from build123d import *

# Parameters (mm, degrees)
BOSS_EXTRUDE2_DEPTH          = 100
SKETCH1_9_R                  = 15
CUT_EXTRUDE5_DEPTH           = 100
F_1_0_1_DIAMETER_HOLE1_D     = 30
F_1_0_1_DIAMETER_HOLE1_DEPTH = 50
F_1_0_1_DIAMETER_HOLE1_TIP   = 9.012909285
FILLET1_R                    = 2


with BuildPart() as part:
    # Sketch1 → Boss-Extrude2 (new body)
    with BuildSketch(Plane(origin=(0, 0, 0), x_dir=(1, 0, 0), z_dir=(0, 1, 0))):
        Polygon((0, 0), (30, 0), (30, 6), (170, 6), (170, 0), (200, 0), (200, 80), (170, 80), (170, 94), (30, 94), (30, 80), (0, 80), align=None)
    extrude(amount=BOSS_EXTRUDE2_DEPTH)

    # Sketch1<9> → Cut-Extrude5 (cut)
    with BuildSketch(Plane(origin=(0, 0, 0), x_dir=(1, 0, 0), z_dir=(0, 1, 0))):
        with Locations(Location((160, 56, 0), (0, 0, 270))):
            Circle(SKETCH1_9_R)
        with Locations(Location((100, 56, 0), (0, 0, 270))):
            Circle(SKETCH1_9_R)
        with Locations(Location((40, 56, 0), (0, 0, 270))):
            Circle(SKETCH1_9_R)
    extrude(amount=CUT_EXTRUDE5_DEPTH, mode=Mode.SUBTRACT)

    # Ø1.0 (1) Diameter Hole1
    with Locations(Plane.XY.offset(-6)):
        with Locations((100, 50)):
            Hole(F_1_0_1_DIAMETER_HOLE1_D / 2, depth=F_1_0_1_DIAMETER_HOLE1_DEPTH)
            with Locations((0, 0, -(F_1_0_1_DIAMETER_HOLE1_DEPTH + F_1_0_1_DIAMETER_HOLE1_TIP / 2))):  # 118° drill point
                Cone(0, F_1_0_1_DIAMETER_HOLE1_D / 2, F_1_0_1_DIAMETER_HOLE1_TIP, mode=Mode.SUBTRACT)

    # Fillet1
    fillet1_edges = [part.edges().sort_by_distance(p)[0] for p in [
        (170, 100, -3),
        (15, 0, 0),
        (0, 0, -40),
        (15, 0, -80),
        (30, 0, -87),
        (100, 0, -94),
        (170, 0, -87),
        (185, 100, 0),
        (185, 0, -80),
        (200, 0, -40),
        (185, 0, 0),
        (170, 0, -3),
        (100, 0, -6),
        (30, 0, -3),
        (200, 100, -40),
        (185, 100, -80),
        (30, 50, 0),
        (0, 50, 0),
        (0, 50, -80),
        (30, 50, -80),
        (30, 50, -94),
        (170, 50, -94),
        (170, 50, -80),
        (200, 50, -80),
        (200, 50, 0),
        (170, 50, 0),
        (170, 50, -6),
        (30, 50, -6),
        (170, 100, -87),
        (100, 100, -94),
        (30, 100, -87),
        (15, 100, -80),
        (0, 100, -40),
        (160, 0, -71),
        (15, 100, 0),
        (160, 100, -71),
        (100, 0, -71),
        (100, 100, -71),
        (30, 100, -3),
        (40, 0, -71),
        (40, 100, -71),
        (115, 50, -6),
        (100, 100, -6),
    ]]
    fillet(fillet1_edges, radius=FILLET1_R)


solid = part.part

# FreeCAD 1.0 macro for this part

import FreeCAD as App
import Part
import Sketcher
from FreeCAD import Vector
Q = App.Units.Quantity


def edges_at(feature, points):
    """Names of the edges that pass closest to the given points."""
    edges = feature.Shape.Edges
    near = lambda p: min(range(len(edges)), key=lambda i: edges[i].distToShape(Part.Vertex(*p))[0])
    return sorted({f"Edge{near(p) + 1}" for p in points})

doc = App.newDocument("Part")
body = doc.addObject("PartDesign::Body", "Body")

sketch1 = doc.addObject("Sketcher::SketchObject", "Sketch")
body.addObject(sketch1)
sketch1.AttachmentSupport = (doc.XZ_Plane, [""])
sketch1.MapMode = "FlatFace"
sketch1.addGeometry(Part.LineSegment(Vector(0, 0, 0), Vector(30, 0, 0)), False)
sketch1.addGeometry(Part.LineSegment(Vector(30, 0, 0), Vector(30, -6, 0)), False)
sketch1.addGeometry(Part.LineSegment(Vector(30, -6, 0), Vector(170, -6, 0)), False)
sketch1.addGeometry(Part.LineSegment(Vector(170, -6, 0), Vector(170, 0, 0)), False)
sketch1.addGeometry(Part.LineSegment(Vector(170, 0, 0), Vector(200, 0, 0)), False)
sketch1.addGeometry(Part.LineSegment(Vector(200, 0, 0), Vector(200, -80, 0)), False)
sketch1.addGeometry(Part.LineSegment(Vector(200, -80, 0), Vector(170, -80, 0)), False)
sketch1.addGeometry(Part.LineSegment(Vector(170, -80, 0), Vector(170, -94, 0)), False)
sketch1.addGeometry(Part.LineSegment(Vector(170, -94, 0), Vector(30, -94, 0)), False)
sketch1.addGeometry(Part.LineSegment(Vector(30, -94, 0), Vector(30, -80, 0)), False)
sketch1.addGeometry(Part.LineSegment(Vector(30, -80, 0), Vector(0, -80, 0)), False)
sketch1.addGeometry(Part.LineSegment(Vector(0, -80, 0), Vector(0, 0, 0)), False)
sketch1.addConstraint(Sketcher.Constraint("Coincident", 0, 2, 1, 1))
sketch1.addConstraint(Sketcher.Constraint("Coincident", 1, 2, 2, 1))
sketch1.addConstraint(Sketcher.Constraint("Coincident", 2, 2, 3, 1))
sketch1.addConstraint(Sketcher.Constraint("Coincident", 3, 2, 4, 1))
sketch1.addConstraint(Sketcher.Constraint("Coincident", 4, 2, 5, 1))
sketch1.addConstraint(Sketcher.Constraint("Coincident", 5, 2, 6, 1))
sketch1.addConstraint(Sketcher.Constraint("Coincident", 6, 2, 7, 1))
sketch1.addConstraint(Sketcher.Constraint("Coincident", 7, 2, 8, 1))
sketch1.addConstraint(Sketcher.Constraint("Coincident", 8, 2, 9, 1))
sketch1.addConstraint(Sketcher.Constraint("Coincident", 9, 2, 10, 1))
sketch1.addConstraint(Sketcher.Constraint("Coincident", 10, 2, 11, 1))
sketch1.addConstraint(Sketcher.Constraint("Coincident", 11, 2, 0, 1))
sketch1.addConstraint(Sketcher.Constraint("Horizontal", 0))
sketch1.addConstraint(Sketcher.Constraint("Vertical", 1))
sketch1.addConstraint(Sketcher.Constraint("Horizontal", 2))
sketch1.addConstraint(Sketcher.Constraint("Vertical", 3))
sketch1.addConstraint(Sketcher.Constraint("Horizontal", 4))
sketch1.addConstraint(Sketcher.Constraint("Vertical", 5))
sketch1.addConstraint(Sketcher.Constraint("Horizontal", 6))
sketch1.addConstraint(Sketcher.Constraint("Vertical", 7))
sketch1.addConstraint(Sketcher.Constraint("Horizontal", 8))
sketch1.addConstraint(Sketcher.Constraint("Vertical", 9))
sketch1.addConstraint(Sketcher.Constraint("Horizontal", 10))
sketch1.addConstraint(Sketcher.Constraint("Vertical", 11))
sketch1.addConstraint(Sketcher.Constraint("Coincident", 11, 2, -1, 1))
sketch1.addConstraint(Sketcher.Constraint("PointOnObject", 3, 2, -1))
sketch1.addConstraint(Sketcher.Constraint("Horizontal", 6, 2, 9, 2))
sketch1.addConstraint(Sketcher.Constraint("Vertical", 3, 2, 6, 2))
sketch1.addConstraint(Sketcher.Constraint("Vertical", 1, 2, 8, 2))
sketch1.addConstraint(Sketcher.Constraint("Equal", 0, 4))
sketch1.addConstraint(Sketcher.Constraint("DistanceX", 0, 1, 0, 2, Q("30 mm")))
sketch1.addConstraint(Sketcher.Constraint("DistanceX", 2, 1, 2, 2, Q("140 mm")))
sketch1.addConstraint(Sketcher.Constraint("DistanceY", 1, 2, 1, 1, Q("6 mm")))
sketch1.addConstraint(Sketcher.Constraint("DistanceY", 5, 2, 5, 1, Q("80 mm")))
sketch1.addConstraint(Sketcher.Constraint("DistanceY", 7, 2, 7, 1, Q("14 mm")))
pad1 = doc.addObject("PartDesign::Pad", "Pad")
body.addObject(pad1)
pad1.Profile = sketch1
pad1.Length = 100
pad1.Reversed = True

sketch2 = doc.addObject("Sketcher::SketchObject", "Sketch001")
body.addObject(sketch2)
sketch2.AttachmentSupport = (doc.XZ_Plane, [""])
sketch2.MapMode = "FlatFace"
sketch2.addGeometry(Part.Circle(Vector(160, -56, 0), Vector(0, 0, 1), 15), False)
sketch2.addGeometry(Part.Circle(Vector(100, -56, 0), Vector(0, 0, 1), 15), False)
sketch2.addGeometry(Part.Circle(Vector(40, -56, 0), Vector(0, 0, 1), 15), False)
sketch2.addConstraint(Sketcher.Constraint("Equal", 0, 1))
sketch2.addConstraint(Sketcher.Constraint("Equal", 1, 2))
sketch2.addConstraint(Sketcher.Constraint("Horizontal", 0, 3, 1, 3))
sketch2.addConstraint(Sketcher.Constraint("Horizontal", 1, 3, 2, 3))
sketch2.addConstraint(Sketcher.Constraint("Diameter", 0, Q("30 mm")))
sketch2.addConstraint(Sketcher.Constraint("DistanceX", -1, 1, 0, 3, Q("160 mm")))
sketch2.addConstraint(Sketcher.Constraint("DistanceY", 0, 3, -1, 1, Q("56 mm")))
sketch2.addConstraint(Sketcher.Constraint("DistanceX", -1, 1, 1, 3, Q("100 mm")))
sketch2.addConstraint(Sketcher.Constraint("DistanceX", -1, 1, 2, 3, Q("40 mm")))
pocket1 = doc.addObject("PartDesign::Pocket", "Pocket")
body.addObject(pocket1)
pocket1.Profile = sketch2
pocket1.Length = 100

sketch3 = doc.addObject("Sketcher::SketchObject", "Sketch002")
body.addObject(sketch3)
sketch3.AttachmentSupport = (doc.XY_Plane, [""])
sketch3.MapMode = "FlatFace"
sketch3.AttachmentOffset = App.Placement(Vector(0, 0, -6), App.Rotation())
sketch3.addGeometry(Part.Circle(Vector(100, 50, 0), Vector(0, 0, 1), 15), False)
sketch3.addConstraint(Sketcher.Constraint("Diameter", 0, Q("30 mm")))
sketch3.addConstraint(Sketcher.Constraint("DistanceX", -1, 1, 0, 3, Q("100 mm")))
sketch3.addConstraint(Sketcher.Constraint("DistanceY", -1, 1, 0, 3, Q("50 mm")))
doc.recompute()
hole = doc.addObject("PartDesign::Hole", "Hole")
body.addObject(hole)
hole.Profile = sketch3
hole.ThreadType = "None"
hole.Diameter = 30
hole.DepthType = "Dimension"
hole.Depth = 50
hole.DrillPoint = "Angled"
hole.DrillPointAngle = 118
doc.recompute()

fillet = doc.addObject("PartDesign::Fillet", "Fillet")
body.addObject(fillet)
fillet.Base = (hole, edges_at(hole, [
    (170, 100, -3),
    (15, 0, 0),
    (0, 0, -40),
    (15, 0, -80),
    (30, 0, -87),
    (100, 0, -94),
    (170, 0, -87),
    (185, 100, 0),
    (185, 0, -80),
    (200, 0, -40),
    (185, 0, 0),
    (170, 0, -3),
    (100, 0, -6),
    (30, 0, -3),
    (200, 100, -40),
    (185, 100, -80),
    (30, 50, 0),
    (0, 50, 0),
    (0, 50, -80),
    (30, 50, -80),
    (30, 50, -94),
    (170, 50, -94),
    (170, 50, -80),
    (200, 50, -80),
    (200, 50, 0),
    (170, 50, 0),
    (170, 50, -6),
    (30, 50, -6),
    (170, 100, -87),
    (100, 100, -94),
    (30, 100, -87),
    (15, 100, -80),
    (0, 100, -40),
    (160, 0, -71),
    (15, 100, 0),
    (160, 100, -71),
    (100, 0, -71),
    (100, 100, -71),
    (30, 100, -3),
    (40, 0, -71),
    (40, 100, -71),
    (115, 50, -6),
    (100, 100, -6),
]))
fillet.Radius = 2

doc.recompute()
